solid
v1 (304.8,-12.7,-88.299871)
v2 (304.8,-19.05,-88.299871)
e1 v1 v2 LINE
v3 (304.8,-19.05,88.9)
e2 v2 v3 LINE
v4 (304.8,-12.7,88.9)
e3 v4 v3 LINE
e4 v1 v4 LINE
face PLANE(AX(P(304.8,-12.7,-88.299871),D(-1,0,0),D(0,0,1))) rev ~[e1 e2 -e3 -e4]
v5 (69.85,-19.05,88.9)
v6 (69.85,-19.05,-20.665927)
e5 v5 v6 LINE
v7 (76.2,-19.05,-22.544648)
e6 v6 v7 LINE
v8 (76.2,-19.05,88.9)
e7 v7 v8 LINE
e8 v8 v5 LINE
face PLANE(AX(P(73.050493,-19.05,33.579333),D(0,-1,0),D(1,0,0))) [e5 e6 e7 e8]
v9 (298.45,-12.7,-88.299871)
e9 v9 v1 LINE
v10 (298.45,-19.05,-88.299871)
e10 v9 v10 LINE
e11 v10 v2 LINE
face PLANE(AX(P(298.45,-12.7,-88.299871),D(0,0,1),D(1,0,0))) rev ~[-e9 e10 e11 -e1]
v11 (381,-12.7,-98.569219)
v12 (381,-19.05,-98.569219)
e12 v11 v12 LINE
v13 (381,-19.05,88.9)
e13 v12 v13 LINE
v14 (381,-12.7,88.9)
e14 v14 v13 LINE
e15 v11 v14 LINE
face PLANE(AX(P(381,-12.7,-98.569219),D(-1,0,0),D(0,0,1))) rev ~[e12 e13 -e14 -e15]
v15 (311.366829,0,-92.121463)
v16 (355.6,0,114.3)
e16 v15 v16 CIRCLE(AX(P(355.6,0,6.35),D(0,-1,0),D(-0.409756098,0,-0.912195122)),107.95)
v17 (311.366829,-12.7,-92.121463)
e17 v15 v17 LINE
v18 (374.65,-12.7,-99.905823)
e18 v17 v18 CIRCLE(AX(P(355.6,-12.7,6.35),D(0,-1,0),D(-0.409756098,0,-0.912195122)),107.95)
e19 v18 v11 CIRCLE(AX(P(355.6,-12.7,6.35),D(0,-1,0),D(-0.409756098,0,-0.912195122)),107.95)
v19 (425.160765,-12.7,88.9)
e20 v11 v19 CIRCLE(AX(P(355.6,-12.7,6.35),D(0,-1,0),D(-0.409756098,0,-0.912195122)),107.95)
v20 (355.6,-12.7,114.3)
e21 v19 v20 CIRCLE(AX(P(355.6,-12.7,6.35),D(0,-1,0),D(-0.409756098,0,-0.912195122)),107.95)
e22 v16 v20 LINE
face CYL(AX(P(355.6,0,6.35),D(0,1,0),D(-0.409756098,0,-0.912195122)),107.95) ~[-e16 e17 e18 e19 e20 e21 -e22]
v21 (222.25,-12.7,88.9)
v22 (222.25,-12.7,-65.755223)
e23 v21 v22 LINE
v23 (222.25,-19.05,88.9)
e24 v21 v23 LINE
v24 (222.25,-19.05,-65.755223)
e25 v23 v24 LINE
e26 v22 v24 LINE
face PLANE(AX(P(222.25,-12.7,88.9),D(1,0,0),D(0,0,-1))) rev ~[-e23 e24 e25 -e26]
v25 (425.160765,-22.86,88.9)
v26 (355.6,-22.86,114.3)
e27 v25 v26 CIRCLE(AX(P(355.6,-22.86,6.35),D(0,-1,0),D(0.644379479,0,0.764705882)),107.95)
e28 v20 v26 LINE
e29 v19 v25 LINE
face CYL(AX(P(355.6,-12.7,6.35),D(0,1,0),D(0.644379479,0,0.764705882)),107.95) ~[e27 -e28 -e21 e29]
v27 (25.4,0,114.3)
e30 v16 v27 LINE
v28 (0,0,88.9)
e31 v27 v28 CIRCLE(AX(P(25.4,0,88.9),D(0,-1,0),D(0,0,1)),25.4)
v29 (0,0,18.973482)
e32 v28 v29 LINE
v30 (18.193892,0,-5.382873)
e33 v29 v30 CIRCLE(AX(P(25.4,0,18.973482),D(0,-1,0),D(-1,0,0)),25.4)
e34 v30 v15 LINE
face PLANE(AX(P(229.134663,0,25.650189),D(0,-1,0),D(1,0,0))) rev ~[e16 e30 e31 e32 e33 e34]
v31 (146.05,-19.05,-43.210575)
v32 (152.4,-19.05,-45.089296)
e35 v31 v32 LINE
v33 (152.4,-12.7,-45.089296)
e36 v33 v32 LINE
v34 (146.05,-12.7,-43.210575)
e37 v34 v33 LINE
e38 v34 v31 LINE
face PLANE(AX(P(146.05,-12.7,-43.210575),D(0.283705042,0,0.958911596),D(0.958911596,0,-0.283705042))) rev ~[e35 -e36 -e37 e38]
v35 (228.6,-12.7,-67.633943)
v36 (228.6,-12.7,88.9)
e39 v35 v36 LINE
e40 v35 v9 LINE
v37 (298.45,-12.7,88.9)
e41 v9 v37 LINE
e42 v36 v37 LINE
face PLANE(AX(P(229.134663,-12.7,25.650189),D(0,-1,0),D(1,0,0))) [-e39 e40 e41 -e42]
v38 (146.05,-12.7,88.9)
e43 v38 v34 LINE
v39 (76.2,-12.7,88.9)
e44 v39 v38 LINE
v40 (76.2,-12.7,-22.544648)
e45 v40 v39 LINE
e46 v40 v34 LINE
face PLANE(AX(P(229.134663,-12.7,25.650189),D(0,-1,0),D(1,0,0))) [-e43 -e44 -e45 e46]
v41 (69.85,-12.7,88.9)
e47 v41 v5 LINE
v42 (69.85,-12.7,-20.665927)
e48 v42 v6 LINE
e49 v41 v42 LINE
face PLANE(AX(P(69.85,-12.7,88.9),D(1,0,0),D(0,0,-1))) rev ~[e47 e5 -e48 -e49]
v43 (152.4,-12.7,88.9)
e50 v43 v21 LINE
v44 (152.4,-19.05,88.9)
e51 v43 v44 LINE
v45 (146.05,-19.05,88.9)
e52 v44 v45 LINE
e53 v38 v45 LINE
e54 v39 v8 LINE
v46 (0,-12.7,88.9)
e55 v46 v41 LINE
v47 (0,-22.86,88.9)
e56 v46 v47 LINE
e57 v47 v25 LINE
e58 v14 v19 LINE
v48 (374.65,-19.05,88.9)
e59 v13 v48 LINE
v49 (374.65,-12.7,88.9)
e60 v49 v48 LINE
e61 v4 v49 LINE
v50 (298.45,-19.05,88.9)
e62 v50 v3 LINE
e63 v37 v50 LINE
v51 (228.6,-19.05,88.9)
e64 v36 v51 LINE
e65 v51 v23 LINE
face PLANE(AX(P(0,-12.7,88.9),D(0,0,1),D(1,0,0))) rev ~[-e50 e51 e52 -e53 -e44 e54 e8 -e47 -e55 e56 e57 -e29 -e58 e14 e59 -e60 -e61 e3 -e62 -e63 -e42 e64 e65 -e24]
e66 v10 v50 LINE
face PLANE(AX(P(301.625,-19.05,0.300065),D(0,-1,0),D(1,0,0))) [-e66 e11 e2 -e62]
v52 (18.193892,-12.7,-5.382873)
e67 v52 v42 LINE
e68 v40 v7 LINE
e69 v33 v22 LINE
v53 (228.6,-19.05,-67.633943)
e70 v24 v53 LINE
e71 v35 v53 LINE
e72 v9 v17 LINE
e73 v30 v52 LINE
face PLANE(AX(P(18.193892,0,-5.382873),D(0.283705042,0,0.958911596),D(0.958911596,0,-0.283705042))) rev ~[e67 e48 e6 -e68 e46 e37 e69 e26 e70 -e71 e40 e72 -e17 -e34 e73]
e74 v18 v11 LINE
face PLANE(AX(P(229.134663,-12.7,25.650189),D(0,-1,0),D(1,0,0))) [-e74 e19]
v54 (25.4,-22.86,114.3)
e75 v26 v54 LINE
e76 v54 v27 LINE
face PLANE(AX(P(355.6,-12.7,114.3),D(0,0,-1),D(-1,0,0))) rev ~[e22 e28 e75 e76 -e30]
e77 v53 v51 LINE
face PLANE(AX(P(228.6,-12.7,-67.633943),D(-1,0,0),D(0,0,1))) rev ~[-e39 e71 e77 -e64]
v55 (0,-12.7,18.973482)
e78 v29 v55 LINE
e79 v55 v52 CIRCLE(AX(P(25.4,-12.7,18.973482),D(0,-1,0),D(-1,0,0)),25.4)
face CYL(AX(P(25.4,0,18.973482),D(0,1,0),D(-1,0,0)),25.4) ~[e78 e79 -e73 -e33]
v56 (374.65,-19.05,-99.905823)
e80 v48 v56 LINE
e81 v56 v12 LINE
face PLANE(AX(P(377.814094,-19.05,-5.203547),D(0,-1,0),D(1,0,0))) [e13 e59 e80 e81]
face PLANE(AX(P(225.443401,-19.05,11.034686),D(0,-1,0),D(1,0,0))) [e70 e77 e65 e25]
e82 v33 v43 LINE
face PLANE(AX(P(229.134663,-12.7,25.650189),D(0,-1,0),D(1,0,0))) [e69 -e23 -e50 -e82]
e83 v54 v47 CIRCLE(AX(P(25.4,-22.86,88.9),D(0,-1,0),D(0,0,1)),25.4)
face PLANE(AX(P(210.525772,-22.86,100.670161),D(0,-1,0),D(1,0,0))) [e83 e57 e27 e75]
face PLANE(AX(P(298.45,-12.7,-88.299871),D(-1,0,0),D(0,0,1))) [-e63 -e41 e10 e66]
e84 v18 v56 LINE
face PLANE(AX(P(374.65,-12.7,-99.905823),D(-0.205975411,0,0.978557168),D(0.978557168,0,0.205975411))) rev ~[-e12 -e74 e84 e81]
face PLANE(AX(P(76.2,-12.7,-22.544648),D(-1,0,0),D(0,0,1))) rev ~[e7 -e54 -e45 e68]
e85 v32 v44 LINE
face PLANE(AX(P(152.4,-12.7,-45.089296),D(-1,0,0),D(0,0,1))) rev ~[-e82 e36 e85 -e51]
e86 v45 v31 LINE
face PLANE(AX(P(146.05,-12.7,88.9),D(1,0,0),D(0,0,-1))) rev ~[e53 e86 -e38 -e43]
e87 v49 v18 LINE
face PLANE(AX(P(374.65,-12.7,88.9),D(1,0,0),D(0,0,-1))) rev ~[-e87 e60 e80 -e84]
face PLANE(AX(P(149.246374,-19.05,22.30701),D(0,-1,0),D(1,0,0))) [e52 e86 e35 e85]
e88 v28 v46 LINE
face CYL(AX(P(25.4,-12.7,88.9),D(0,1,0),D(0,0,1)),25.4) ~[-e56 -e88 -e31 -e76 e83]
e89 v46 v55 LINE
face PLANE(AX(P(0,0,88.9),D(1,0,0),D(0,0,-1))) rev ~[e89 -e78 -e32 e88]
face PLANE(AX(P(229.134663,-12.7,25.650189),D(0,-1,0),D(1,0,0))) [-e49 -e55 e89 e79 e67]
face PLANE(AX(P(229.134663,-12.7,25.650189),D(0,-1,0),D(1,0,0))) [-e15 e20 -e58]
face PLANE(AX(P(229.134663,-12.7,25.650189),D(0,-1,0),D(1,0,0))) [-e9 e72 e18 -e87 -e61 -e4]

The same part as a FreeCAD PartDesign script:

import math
import FreeCAD as App
import Part
import Sketcher
from FreeCAD import Vector
Q = App.Units.Quantity

doc = App.newDocument("Part")
params = doc.addObject("Spreadsheet::Sheet", "Params")
for row, (alias, value) in enumerate([
    ("sketch1_radius", "1 in"),
    ("sketch1_width", "13 in"),
    ("sketch1_radius2", "4.25 in"),
    ("pad1_length", "0.5 in"),
    ("sketch2_radius", "1 in"),
    ("sketch2_width", "13 in"),
    ("sketch2_radius2", "4.25 in"),
    ("pad2_length", "0.4 in"),
    ("sketch3_width", "0.25 in"),
    ("pad3_length", "0.25 in"),
], start=1):
    params.set(f"A{row}", alias)
    params.set(f"B{row}", "=" + value)
    params.setAlias(f"B{row}", alias)

body = doc.addObject("PartDesign::Body", "Body")

# Sketch on XZ plane
sketch1 = body.newObject("Sketcher::SketchObject", "Sketch")
sketch1.AttachmentSupport = (doc.getObject("XZ_Plane"), [""])
sketch1.MapMode = "FlatFace"
sketch1.addGeometry([
    Part.LineSegment(Vector(0, 88.9, 0), Vector(0, 18.973482, 0)),  # 0
    Part.ArcOfCircle(Part.Circle(Vector(25.4, 18.973482, 0), Vector(0, 0, 1), 25.4), math.radians(180), math.radians(253.518542)),  # 1
    Part.LineSegment(Vector(18.193892, -5.382873, 0), Vector(311.366829, -92.121463, 0)),  # 2
    Part.ArcOfCircle(Part.Circle(Vector(355.6, 6.35, 0), Vector(0, 0, 1), 107.95), math.radians(-114.189514), math.radians(90)),  # 3
    Part.LineSegment(Vector(355.6, 114.3, 0), Vector(25.4, 114.3, 0)),  # 4
    Part.ArcOfCircle(Part.Circle(Vector(25.4, 88.9, 0), Vector(0, 0, 1), 25.4), math.radians(90), math.radians(180)),  # 5
], False)
sketch1.addConstraint([
    Sketcher.Constraint("Tangent", 0, 2, 1, 1),
    Sketcher.Constraint("Tangent", 1, 2, 2, 1),
    Sketcher.Constraint("Coincident", 2, 2, 3, 1),
    Sketcher.Constraint("Tangent", 3, 2, 4, 1),
    Sketcher.Constraint("Tangent", 4, 2, 5, 1),
    Sketcher.Constraint("Tangent", 5, 2, 0, 1),
    Sketcher.Constraint("Vertical", 0),
    Sketcher.Constraint("Horizontal", 4),
    Sketcher.Constraint("Equal", 1, 5),
    Sketcher.Constraint("PointOnObject", 0, 2, -2),
    Sketcher.Constraint("Radius", 1, Q("1 in")),
    Sketcher.Constraint("DistanceX", 4, 2, 4, 1, Q("13 in")),
    Sketcher.Constraint("Radius", 3, Q("4.25 in")),
    Sketcher.Constraint("DistanceY", -1, 1, 5, 3, Q("3.5 in")),
    Sketcher.Constraint("DistanceY", 0, 2, 0, 1, 69.926518),
    Sketcher.Constraint("DistanceX", -1, 1, 2, 2, 311.366829),
])
sketch1.setExpression("Constraints[10]", "Params.sketch1_radius")
sketch1.setExpression("Constraints[11]", "Params.sketch1_width")
sketch1.setExpression("Constraints[12]", "Params.sketch1_radius2")
pad1 = body.newObject("PartDesign::Pad", "Pad")
pad1.Profile = sketch1
pad1.setExpression("Length", "Params.pad1_length")

# Sketch on XZ plane
sketch2 = body.newObject("Sketcher::SketchObject", "Sketch001")
sketch2.AttachmentSupport = (doc.getObject("XZ_Plane"), [""])
sketch2.MapMode = "FlatFace"
sketch2.AttachmentOffset = App.Placement(Vector(0, 0, 0.5 * 25.4), App.Rotation())
sketch2.addGeometry([
    Part.ArcOfCircle(Part.Circle(Vector(25.4, 88.9, 0), Vector(0, 0, 1), 25.4), math.radians(90), math.radians(180)),
    Part.LineSegment(Vector(0, 88.9, 0), Vector(425.160765, 88.9, 0)),
    Part.ArcOfCircle(Part.Circle(Vector(355.6, 6.35, 0), Vector(0, 0, 1), 107.95), math.radians(49.880833), math.radians(90)),
    Part.LineSegment(Vector(355.6, 114.3, 0), Vector(25.4, 114.3, 0)),
], False)
sketch2.addConstraint([
    Sketcher.Constraint("Coincident", 0, 2, 1, 1),
    Sketcher.Constraint("Coincident", 1, 2, 2, 1),
    Sketcher.Constraint("Tangent", 2, 2, 3, 1),
    Sketcher.Constraint("Tangent", 3, 2, 0, 1),
    Sketcher.Constraint("Horizontal", 1),
    Sketcher.Constraint("Horizontal", 3),
    Sketcher.Constraint("PointOnObject", 0, 2, -2),
    Sketcher.Constraint("Radius", 0, Q("1 in")),
    Sketcher.Constraint("DistanceX", 3, 2, 3, 1, Q("13 in")),
    Sketcher.Constraint("Radius", 2, Q("4.25 in")),
    Sketcher.Constraint("DistanceY", 1, 2, 2, 2, Q("1 in")),
    Sketcher.Constraint("DistanceY", -1, 1, 0, 3, Q("3.5 in")),
])
sketch2.setExpression("Constraints[7]", "Params.sketch2_radius")
sketch2.setExpression("Constraints[8]", "Params.sketch2_width")
sketch2.setExpression("Constraints[9]", "Params.sketch2_radius2")
pad2 = body.newObject("PartDesign::Pad", "Pad001")
pad2.Profile = sketch2
pad2.setExpression("Length", "Params.pad2_length")

# Sketch on XZ plane
sketch3 = body.newObject("Sketcher::SketchObject", "Sketch002")
sketch3.AttachmentSupport = (doc.getObject("XZ_Plane"), [""])
sketch3.MapMode = "FlatFace"
sketch3.AttachmentOffset = App.Placement(Vector(0, 0, 0.5 * 25.4), App.Rotation())
sketch3.addGeometry([
    Part.LineSegment(Vector(76.2, 88.9, 0), Vector(69.85, 88.9, 0)),  # 0
    Part.LineSegment(Vector(69.85, 88.9, 0), Vector(69.85, -20.665927, 0)),  # 1
    Part.LineSegment(Vector(69.85, -20.665927, 0), Vector(76.2, -22.544648, 0)),  # 2
    Part.LineSegment(Vector(76.2, -22.544648, 0), Vector(76.2, 88.9, 0)),  # 3
    Part.LineSegment(Vector(152.4, 88.9, 0), Vector(146.05, 88.9, 0)),  # 4
    Part.LineSegment(Vector(146.05, 88.9, 0), Vector(146.05, -43.210575, 0)),  # 5
    Part.LineSegment(Vector(146.05, -43.210575, 0), Vector(152.4, -45.089296, 0)),  # 6
    Part.LineSegment(Vector(152.4, -45.089296, 0), Vector(152.4, 88.9, 0)),  # 7
    Part.LineSegment(Vector(228.6, 88.9, 0), Vector(222.25, 88.9, 0)),  # 8
    Part.LineSegment(Vector(222.25, 88.9, 0), Vector(222.25, -65.755223, 0)),  # 9
    Part.LineSegment(Vector(222.25, -65.755223, 0), Vector(228.6, -67.633943, 0)),  # 10
    Part.LineSegment(Vector(228.6, -67.633943, 0), Vector(228.6, 88.9, 0)),  # 11
    Part.LineSegment(Vector(298.45, 88.9, 0), Vector(298.45, -88.299871, 0)),  # 12
    Part.LineSegment(Vector(298.45, -88.299871, 0), Vector(304.8, -88.299871, 0)),  # 13
    Part.LineSegment(Vector(304.8, -88.299871, 0), Vector(304.8, 88.9, 0)),  # 14
    Part.LineSegment(Vector(304.8, 88.9, 0), Vector(298.45, 88.9, 0)),  # 15
    Part.LineSegment(Vector(381, 88.9, 0), Vector(374.65, 88.9, 0)),  # 16
    Part.LineSegment(Vector(374.65, 88.9, 0), Vector(374.65, -99.905823, 0)),  # 17
    Part.LineSegment(Vector(374.65, -99.905823, 0), Vector(381, -98.569219, 0)),  # 18
    Part.LineSegment(Vector(381, -98.569219, 0), Vector(381, 88.9, 0)),  # 19
], False)
sketch3.addConstraint([
    Sketcher.Constraint("Coincident", 0, 2, 1, 1),
    Sketcher.Constraint("Coincident", 1, 2, 2, 1),
    Sketcher.Constraint("Coincident", 2, 2, 3, 1),
    Sketcher.Constraint("Coincident", 3, 2, 0, 1),
    Sketcher.Constraint("Coincident", 4, 2, 5, 1),
    Sketcher.Constraint("Coincident", 5, 2, 6, 1),
    Sketcher.Constraint("Coincident", 6, 2, 7, 1),
    Sketcher.Constraint("Coincident", 7, 2, 4, 1),
    Sketcher.Constraint("Coincident", 8, 2, 9, 1),
    Sketcher.Constraint("Coincident", 9, 2, 10, 1),
    Sketcher.Constraint("Coincident", 10, 2, 11, 1),
    Sketcher.Constraint("Coincident", 11, 2, 8, 1),
    Sketcher.Constraint("Coincident", 12, 2, 13, 1),
    Sketcher.Constraint("Coincident", 13, 2, 14, 1),
    Sketcher.Constraint("Coincident", 14, 2, 15, 1),
    Sketcher.Constraint("Coincident", 15, 2, 12, 1),
    Sketcher.Constraint("Coincident", 16, 2, 17, 1),
    Sketcher.Constraint("Coincident", 17, 2, 18, 1),
    Sketcher.Constraint("Coincident", 18, 2, 19, 1),
    Sketcher.Constraint("Coincident", 19, 2, 16, 1),
    Sketcher.Constraint("Horizontal", 0),
    Sketcher.Constraint("Vertical", 1),
    Sketcher.Constraint("Vertical", 3),
    Sketcher.Constraint("Horizontal", 4),
    Sketcher.Constraint("Vertical", 5),
    Sketcher.Constraint("Vertical", 7),
    Sketcher.Constraint("Horizontal", 8),
    Sketcher.Constraint("Vertical", 9),
    Sketcher.Constraint("Vertical", 11),
    Sketcher.Constraint("Vertical", 12),
    Sketcher.Constraint("Horizontal", 13),
    Sketcher.Constraint("Vertical", 14),
    Sketcher.Constraint("Horizontal", 15),
    Sketcher.Constraint("Horizontal", 16),
    Sketcher.Constraint("Vertical", 17),
    Sketcher.Constraint("Vertical", 19),
    Sketcher.Constraint("Parallel", 2, 6),
    Sketcher.Constraint("Parallel", 6, 10),
    Sketcher.Constraint("Horizontal", 3, 2, 4, 2),
    Sketcher.Constraint("Horizontal", 7, 2, 8, 2),
    Sketcher.Constraint("Horizontal", 11, 2, 14, 2),
    Sketcher.Constraint("Horizontal", 15, 2, 16, 2),
    Sketcher.Constraint("Equal", 0, 4),
    Sketcher.Constraint("Equal", 4, 8),
    Sketcher.Constraint("Equal", 8, 13),
    Sketcher.Constraint("Equal", 15, 16),
    Sketcher.Constraint("DistanceX", -1, 1, 2, 2, Q("3 in")),
    Sketcher.Constraint("DistanceX", -1, 1, 6, 2, Q("6 in")),
    Sketcher.Constraint("DistanceX", -1, 1, 10, 2, Q("9 in")),
    Sketcher.Constraint("DistanceX", -1, 1, 13, 2, Q("12 in")),
    Sketcher.Constraint("DistanceX", -1, 1, 18, 2, Q("15 in")),
    Sketcher.Constraint("DistanceX", 0, 2, 0, 1, Q("0.25 in")),
    Sketcher.Constraint("DistanceY", -1, 1, 0, 2, Q("3.5 in")),
    Sketcher.Constraint("DistanceY", 17, 2, 17, 1, Q("7.4333001 in")),
    Sketcher.Constraint("DistanceY", 12, 2, 12, 1, 177.199871),
    Sketcher.Constraint("DistanceY", 19, 1, 19, 2, 187.469219),
    Sketcher.Constraint("DistanceY", 17, 2, 9, 2, 34.150601),
    Sketcher.Constraint("Distance", 2, 6.622091),
    Sketcher.Constraint("DistanceY", 1, 2, 1, 1, 109.565927),
    Sketcher.Constraint("DistanceY", 5, 2, 5, 1, 132.110575),
])
sketch3.setExpression("Constraints[51]", "Params.sketch3_width")
pad3 = body.newObject("PartDesign::Pad", "Pad002")
pad3.Profile = sketch3
pad3.setExpression("Length", "Params.pad3_length")

doc.recompute()
